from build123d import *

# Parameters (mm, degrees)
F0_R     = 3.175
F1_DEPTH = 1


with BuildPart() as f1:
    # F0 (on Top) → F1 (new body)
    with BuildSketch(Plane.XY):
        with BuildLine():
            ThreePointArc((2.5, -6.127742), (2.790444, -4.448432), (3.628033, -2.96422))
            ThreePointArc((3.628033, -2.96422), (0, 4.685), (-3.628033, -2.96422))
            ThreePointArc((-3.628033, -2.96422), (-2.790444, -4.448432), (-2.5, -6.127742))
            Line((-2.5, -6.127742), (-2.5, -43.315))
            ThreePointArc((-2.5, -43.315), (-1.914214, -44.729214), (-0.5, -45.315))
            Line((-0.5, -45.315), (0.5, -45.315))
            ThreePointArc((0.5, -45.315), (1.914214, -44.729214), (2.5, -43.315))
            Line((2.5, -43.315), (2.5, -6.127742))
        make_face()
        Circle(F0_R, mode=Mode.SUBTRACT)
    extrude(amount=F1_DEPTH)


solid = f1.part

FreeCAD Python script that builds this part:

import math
import FreeCAD as App
import Part
import Sketcher

doc = App.newDocument("Part")
body = doc.addObject("PartDesign::Body", "Body")

# Sketch on XY plane
sketch1 = body.newObject("Sketcher::SketchObject", "Sketch")
sketch1.AttachmentSupport = (doc.getObject("XY_Plane"), [""])
sketch1.MapMode = "FlatFace"
sketch1.addGeometry(Part.ArcOfCircle(Part.Circle(App.Vector(7.5, -6.1, 0), App.Vector(0, 0, 1), 5), math.radians(141), math.radians(180)), False)
sketch1.addGeometry(Part.ArcOfCircle(Part.Circle(App.Vector(0, 0, 0), App.Vector(0, 0, 1), 4.7), math.radians(-39), math.radians(219)), False)
sketch1.addGeometry(Part.ArcOfCircle(Part.Circle(App.Vector(-7.5, -6.1, 0), App.Vector(0, 0, 1), 5), math.radians(0), math.radians(39)), False)
sketch1.addGeometry(Part.LineSegment(App.Vector(-2.5, -6.1, 0), App.Vector(-2.5, -43.3, 0)), False)
sketch1.addGeometry(Part.ArcOfCircle(Part.Circle(App.Vector(-0.5, -43.3, 0), App.Vector(0, 0, 1), 2), math.radians(180), math.radians(270)), False)
sketch1.addGeometry(Part.LineSegment(App.Vector(-0.5, -45.3, 0), App.Vector(0.5, -45.3, 0)), False)
sketch1.addGeometry(Part.ArcOfCircle(Part.Circle(App.Vector(0.5, -43.3, 0), App.Vector(0, 0, 1), 2), math.radians(-90), math.radians(0)), False)
sketch1.addGeometry(Part.LineSegment(App.Vector(2.5, -43.3, 0), App.Vector(2.5, -6.1, 0)), False)
sketch1.addGeometry(Part.Circle(App.Vector(0, 0, 0), App.Vector(0, 0, 1), 3.2), False)
sketch1.addConstraint(Sketcher.Constraint("Tangent", 0, 1, 1, 1))
sketch1.addConstraint(Sketcher.Constraint("Tangent", 1, 2, 2, 2))
sketch1.addConstraint(Sketcher.Constraint("Tangent", 2, 1, 3, 1))
sketch1.addConstraint(Sketcher.Constraint("Tangent", 3, 2, 4, 1))
sketch1.addConstraint(Sketcher.Constraint("Tangent", 4, 2, 5, 1))
sketch1.addConstraint(Sketcher.Constraint("Tangent", 5, 2, 6, 1))
sketch1.addConstraint(Sketcher.Constraint("Tangent", 6, 2, 7, 1))
sketch1.addConstraint(Sketcher.Constraint("Tangent", 7, 2, 0, 2))
sketch1.addConstraint(Sketcher.Constraint("Vertical", 3))
sketch1.addConstraint(Sketcher.Constraint("Horizontal", 5))
sketch1.addConstraint(Sketcher.Constraint("Vertical", 7))
sketch1.addConstraint(Sketcher.Constraint("Coincident", 1, 3, -1, 1))
sketch1.addConstraint(Sketcher.Constraint("Coincident", 8, 3, -1, 1))
sketch1.addConstraint(Sketcher.Constraint("Equal", 0, 2))
sketch1.addConstraint(Sketcher.Constraint("Equal", 4, 6))
sketch1.addConstraint(Sketcher.Constraint("Horizontal", 0, 3, 2, 3))
sketch1.addConstraint(Sketcher.Constraint("Radius", 0, 5.0))
sketch1.addConstraint(Sketcher.Constraint("Radius", 4, 1.999999))
sketch1.addConstraint(Sketcher.Constraint("Diameter", 8, 6.35))
sketch1.addConstraint(Sketcher.Constraint("DistanceX", 5, 1, 5, 2, 1.0))
sketch1.addConstraint(Sketcher.Constraint("Radius", 1, 4.685))
sketch1.addConstraint(Sketcher.Constraint("DistanceY", 4, 3, -1, 1, 43.315001))
pad1 = body.newObject("PartDesign::Pad", "Pad")
pad1.Profile = sketch1
pad1.Length = 1

doc.recompute()
